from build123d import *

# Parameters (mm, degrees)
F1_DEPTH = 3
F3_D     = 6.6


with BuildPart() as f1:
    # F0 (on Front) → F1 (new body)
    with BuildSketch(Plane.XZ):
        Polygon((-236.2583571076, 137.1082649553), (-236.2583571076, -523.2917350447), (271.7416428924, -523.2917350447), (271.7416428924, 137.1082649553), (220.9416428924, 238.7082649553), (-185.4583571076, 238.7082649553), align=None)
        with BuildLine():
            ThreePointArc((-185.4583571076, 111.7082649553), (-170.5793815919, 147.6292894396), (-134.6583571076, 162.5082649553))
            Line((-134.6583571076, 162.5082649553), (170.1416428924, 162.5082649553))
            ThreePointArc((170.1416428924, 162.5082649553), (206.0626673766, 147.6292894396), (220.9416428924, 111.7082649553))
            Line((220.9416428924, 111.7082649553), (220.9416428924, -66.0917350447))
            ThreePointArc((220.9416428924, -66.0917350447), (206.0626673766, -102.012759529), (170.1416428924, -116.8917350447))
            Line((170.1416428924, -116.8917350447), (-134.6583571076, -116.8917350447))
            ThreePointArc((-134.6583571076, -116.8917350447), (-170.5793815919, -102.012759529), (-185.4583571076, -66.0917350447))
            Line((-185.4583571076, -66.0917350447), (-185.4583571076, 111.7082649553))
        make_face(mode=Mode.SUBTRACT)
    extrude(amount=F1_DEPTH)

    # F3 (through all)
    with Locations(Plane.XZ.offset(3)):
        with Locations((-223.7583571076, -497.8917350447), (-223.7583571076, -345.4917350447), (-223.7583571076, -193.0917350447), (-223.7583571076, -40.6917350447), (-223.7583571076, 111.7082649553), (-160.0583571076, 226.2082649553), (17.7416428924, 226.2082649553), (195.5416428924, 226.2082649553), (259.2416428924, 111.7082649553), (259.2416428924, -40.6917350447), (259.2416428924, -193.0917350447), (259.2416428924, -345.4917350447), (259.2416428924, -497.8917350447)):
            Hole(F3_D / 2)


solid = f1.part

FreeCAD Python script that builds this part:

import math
import FreeCAD as App
import Part
import Sketcher
Q = App.Units.Quantity


def add_polygon(sketch, points):
    """Adds a closed chain of lines whose ends are joined by coincident constraints."""
    first, n = sketch.GeometryCount, len(points)
    for a, b in zip(points, points[1:] + points[:1]):
        sketch.addGeometry(Part.LineSegment(App.Vector(*a, 0), App.Vector(*b, 0)), False)
    for i in range(n):
        sketch.addConstraint(Sketcher.Constraint("Coincident", first + i, 2, first + (i + 1) % n, 1))

doc = App.newDocument("Part")
body = doc.addObject("PartDesign::Body", "Body")

sketch1 = doc.addObject("Sketcher::SketchObject", "Sketch")
body.addObject(sketch1)
sketch1.AttachmentSupport = (doc.XZ_Plane, [""])
sketch1.MapMode = "FlatFace"
add_polygon(sketch1, [(-236, 137), (-236, -523), (272, -523), (272, 137), (221, 239), (-185, 239)])
sketch1.addGeometry(Part.LineSegment(App.Vector(-185, -66, 0), App.Vector(-185, 112, 0)), False)
sketch1.addGeometry(Part.ArcOfCircle(Part.Circle(App.Vector(-135, 112, 0), App.Vector(0, 0, 1), 51), math.radians(90), math.radians(180)), False)
sketch1.addGeometry(Part.LineSegment(App.Vector(-135, 163, 0), App.Vector(170, 163, 0)), False)
sketch1.addGeometry(Part.ArcOfCircle(Part.Circle(App.Vector(170, 112, 0), App.Vector(0, 0, 1), 51), math.radians(0), math.radians(90)), False)
sketch1.addGeometry(Part.LineSegment(App.Vector(221, 112, 0), App.Vector(221, -66, 0)), False)
sketch1.addGeometry(Part.ArcOfCircle(Part.Circle(App.Vector(170, -66, 0), App.Vector(0, 0, 1), 51), math.radians(-90), math.radians(0)), False)
sketch1.addGeometry(Part.LineSegment(App.Vector(170, -117, 0), App.Vector(-135, -117, 0)), False)
sketch1.addGeometry(Part.ArcOfCircle(Part.Circle(App.Vector(-135, -66, 0), App.Vector(0, 0, 1), 51), math.radians(180), math.radians(270)), False)
sketch1.addConstraint([
    Sketcher.Constraint("Tangent", 6, 2, 7, 2),
    Sketcher.Constraint("Tangent", 7, 1, 8, 1),
    Sketcher.Constraint("Tangent", 8, 2, 9, 2),
    Sketcher.Constraint("Tangent", 9, 1, 10, 1),
    Sketcher.Constraint("Tangent", 10, 2, 11, 2),
    Sketcher.Constraint("Tangent", 11, 1, 12, 1),
    Sketcher.Constraint("Tangent", 12, 2, 13, 2),
    Sketcher.Constraint("Tangent", 13, 1, 6, 1),
    Sketcher.Constraint("Vertical", 0),
    Sketcher.Constraint("Horizontal", 1),
    Sketcher.Constraint("Vertical", 2),
    Sketcher.Constraint("Horizontal", 4),
    Sketcher.Constraint("Vertical", 6),
    Sketcher.Constraint("Horizontal", 8),
    Sketcher.Constraint("Vertical", 10),
    Sketcher.Constraint("Horizontal", 12),
    Sketcher.Constraint("Equal", 7, 9),
    Sketcher.Constraint("Equal", 9, 11),
    Sketcher.Constraint("Equal", 11, 13),
    Sketcher.Constraint("Horizontal", 2, 2, 5, 2),
    Sketcher.Constraint("Vertical", 4, 2, 6, 2),
    Sketcher.Constraint("Vertical", 3, 2, 9, 1),
    Sketcher.Constraint("Equal", 3, 5),
    Sketcher.Constraint("Radius", 7, Q("2 in")),
    Sketcher.Constraint("DistanceX", 1, 1, 1, 2, Q("20 in")),
    Sketcher.Constraint("DistanceX", 4, 2, 4, 1, Q("16 in")),
    Sketcher.Constraint("DistanceY", 0, 2, 0, 1, Q("26 in")),
    Sketcher.Constraint("DistanceY", 6, 1, 6, 2, Q("7 in")),
    Sketcher.Constraint("DistanceY", 0, 2, 13, 3, Q("18 in")),
    Sketcher.Constraint("DistanceY", 2, 2, 3, 2, Q("4 in")),
    Sketcher.Constraint("DistanceX", 7, 3, -1, 1, Q("134.658357 mm")),
    Sketcher.Constraint("DistanceY", -1, 1, 7, 3, Q("111.708265 mm")),
])
pad1 = doc.addObject("PartDesign::Pad", "Pad")
body.addObject(pad1)
pad1.Profile = sketch1
pad1.Length = 3

sketch2 = doc.addObject("Sketcher::SketchObject", "Sketch001")
body.addObject(sketch2)
sketch2.AttachmentSupport = (doc.XZ_Plane, [""])
sketch2.MapMode = "FlatFace"
sketch2.AttachmentOffset = App.Placement(App.Vector(0, 0, 3), App.Rotation())
sketch2.addGeometry([
    Part.Circle(App.Vector(-223.8, -497.9, 0), App.Vector(0, 0, 1), 3.3),
    Part.Circle(App.Vector(-223.8, -345.5, 0), App.Vector(0, 0, 1), 3.3),
    Part.Circle(App.Vector(-223.8, -193.1, 0), App.Vector(0, 0, 1), 3.3),
    Part.Circle(App.Vector(-223.8, -40.7, 0), App.Vector(0, 0, 1), 3.3),
    Part.Circle(App.Vector(-223.8, 111.7, 0), App.Vector(0, 0, 1), 3.3),
    Part.Circle(App.Vector(-160.1, 226.2, 0), App.Vector(0, 0, 1), 3.3),
    Part.Circle(App.Vector(17.7, 226.2, 0), App.Vector(0, 0, 1), 3.3),
    Part.Circle(App.Vector(195.5, 226.2, 0), App.Vector(0, 0, 1), 3.3),
    Part.Circle(App.Vector(259.2, 111.7, 0), App.Vector(0, 0, 1), 3.3),
    Part.Circle(App.Vector(259.2, -40.7, 0), App.Vector(0, 0, 1), 3.3),
    Part.Circle(App.Vector(259.2, -193.1, 0), App.Vector(0, 0, 1), 3.3),
    Part.Circle(App.Vector(259.2, -345.5, 0), App.Vector(0, 0, 1), 3.3),
    Part.Circle(App.Vector(259.2, -497.9, 0), App.Vector(0, 0, 1), 3.3),
], False)
sketch2.addConstraint([
    Sketcher.Constraint("Equal", 0, 1),
    Sketcher.Constraint("Equal", 1, 2),
    Sketcher.Constraint("Equal", 2, 3),
    Sketcher.Constraint("Equal", 3, 4),
    Sketcher.Constraint("Equal", 4, 5),
    Sketcher.Constraint("Equal", 5, 6),
    Sketcher.Constraint("Equal", 6, 7),
    Sketcher.Constraint("Equal", 7, 8),
    Sketcher.Constraint("Equal", 8, 9),
    Sketcher.Constraint("Equal", 9, 10),
    Sketcher.Constraint("Equal", 10, 11),
    Sketcher.Constraint("Equal", 11, 12),
    Sketcher.Constraint("Horizontal", 5, 3, 6, 3),
    Sketcher.Constraint("Horizontal", 6, 3, 7, 3),
    Sketcher.Constraint("Horizontal", 4, 3, 8, 3),
    Sketcher.Constraint("Horizontal", 3, 3, 9, 3),
    Sketcher.Constraint("Horizontal", 2, 3, 10, 3),
    Sketcher.Constraint("Horizontal", 1, 3, 11, 3),
    Sketcher.Constraint("Horizontal", 0, 3, 12, 3),
    Sketcher.Constraint("Vertical", 0, 3, 1, 3),
    Sketcher.Constraint("Vertical", 1, 3, 2, 3),
    Sketcher.Constraint("Vertical", 2, 3, 3, 3),
    Sketcher.Constraint("Vertical", 3, 3, 4, 3),
    Sketcher.Constraint("Vertical", 8, 3, 9, 3),
    Sketcher.Constraint("Vertical", 9, 3, 10, 3),
    Sketcher.Constraint("Vertical", 10, 3, 11, 3),
    Sketcher.Constraint("Vertical", 11, 3, 12, 3),
    Sketcher.Constraint("DistanceY", 0, 3, 1, 3, Q("6 in")),
    Sketcher.Constraint("DistanceY", 1, 3, 2, 3, Q("6 in")),
    Sketcher.Constraint("DistanceY", 2, 3, 3, 3, Q("6 in")),
    Sketcher.Constraint("DistanceY", 3, 3, 4, 3, Q("6 in")),
    Sketcher.Constraint("DistanceX", 5, 3, 6, 3, Q("7 in")),
    Sketcher.Constraint("DistanceX", 6, 3, 7, 3, Q("7 in")),
    Sketcher.Constraint("Diameter", 0, Q("6.6 mm")),
    Sketcher.Constraint("DistanceX", 4, 3, 5, 3, Q("63.7 mm")),
    Sketcher.Constraint("DistanceY", 4, 3, 5, 3, Q("114.5 mm")),
    Sketcher.Constraint("DistanceX", 7, 3, 8, 3, Q("63.7 mm")),
    Sketcher.Constraint("DistanceX", 0, 3, -1, 1, Q("223.758357 mm")),
    Sketcher.Constraint("DistanceY", 0, 3, -1, 1, Q("497.891735 mm")),
])
doc.recompute()
hole = doc.addObject("PartDesign::Hole", "Hole")
body.addObject(hole)
hole.Profile = sketch2
hole.ThreadType = "None"
hole.Diameter = 6.6
hole.DepthType = "ThroughAll"

doc.recompute()
